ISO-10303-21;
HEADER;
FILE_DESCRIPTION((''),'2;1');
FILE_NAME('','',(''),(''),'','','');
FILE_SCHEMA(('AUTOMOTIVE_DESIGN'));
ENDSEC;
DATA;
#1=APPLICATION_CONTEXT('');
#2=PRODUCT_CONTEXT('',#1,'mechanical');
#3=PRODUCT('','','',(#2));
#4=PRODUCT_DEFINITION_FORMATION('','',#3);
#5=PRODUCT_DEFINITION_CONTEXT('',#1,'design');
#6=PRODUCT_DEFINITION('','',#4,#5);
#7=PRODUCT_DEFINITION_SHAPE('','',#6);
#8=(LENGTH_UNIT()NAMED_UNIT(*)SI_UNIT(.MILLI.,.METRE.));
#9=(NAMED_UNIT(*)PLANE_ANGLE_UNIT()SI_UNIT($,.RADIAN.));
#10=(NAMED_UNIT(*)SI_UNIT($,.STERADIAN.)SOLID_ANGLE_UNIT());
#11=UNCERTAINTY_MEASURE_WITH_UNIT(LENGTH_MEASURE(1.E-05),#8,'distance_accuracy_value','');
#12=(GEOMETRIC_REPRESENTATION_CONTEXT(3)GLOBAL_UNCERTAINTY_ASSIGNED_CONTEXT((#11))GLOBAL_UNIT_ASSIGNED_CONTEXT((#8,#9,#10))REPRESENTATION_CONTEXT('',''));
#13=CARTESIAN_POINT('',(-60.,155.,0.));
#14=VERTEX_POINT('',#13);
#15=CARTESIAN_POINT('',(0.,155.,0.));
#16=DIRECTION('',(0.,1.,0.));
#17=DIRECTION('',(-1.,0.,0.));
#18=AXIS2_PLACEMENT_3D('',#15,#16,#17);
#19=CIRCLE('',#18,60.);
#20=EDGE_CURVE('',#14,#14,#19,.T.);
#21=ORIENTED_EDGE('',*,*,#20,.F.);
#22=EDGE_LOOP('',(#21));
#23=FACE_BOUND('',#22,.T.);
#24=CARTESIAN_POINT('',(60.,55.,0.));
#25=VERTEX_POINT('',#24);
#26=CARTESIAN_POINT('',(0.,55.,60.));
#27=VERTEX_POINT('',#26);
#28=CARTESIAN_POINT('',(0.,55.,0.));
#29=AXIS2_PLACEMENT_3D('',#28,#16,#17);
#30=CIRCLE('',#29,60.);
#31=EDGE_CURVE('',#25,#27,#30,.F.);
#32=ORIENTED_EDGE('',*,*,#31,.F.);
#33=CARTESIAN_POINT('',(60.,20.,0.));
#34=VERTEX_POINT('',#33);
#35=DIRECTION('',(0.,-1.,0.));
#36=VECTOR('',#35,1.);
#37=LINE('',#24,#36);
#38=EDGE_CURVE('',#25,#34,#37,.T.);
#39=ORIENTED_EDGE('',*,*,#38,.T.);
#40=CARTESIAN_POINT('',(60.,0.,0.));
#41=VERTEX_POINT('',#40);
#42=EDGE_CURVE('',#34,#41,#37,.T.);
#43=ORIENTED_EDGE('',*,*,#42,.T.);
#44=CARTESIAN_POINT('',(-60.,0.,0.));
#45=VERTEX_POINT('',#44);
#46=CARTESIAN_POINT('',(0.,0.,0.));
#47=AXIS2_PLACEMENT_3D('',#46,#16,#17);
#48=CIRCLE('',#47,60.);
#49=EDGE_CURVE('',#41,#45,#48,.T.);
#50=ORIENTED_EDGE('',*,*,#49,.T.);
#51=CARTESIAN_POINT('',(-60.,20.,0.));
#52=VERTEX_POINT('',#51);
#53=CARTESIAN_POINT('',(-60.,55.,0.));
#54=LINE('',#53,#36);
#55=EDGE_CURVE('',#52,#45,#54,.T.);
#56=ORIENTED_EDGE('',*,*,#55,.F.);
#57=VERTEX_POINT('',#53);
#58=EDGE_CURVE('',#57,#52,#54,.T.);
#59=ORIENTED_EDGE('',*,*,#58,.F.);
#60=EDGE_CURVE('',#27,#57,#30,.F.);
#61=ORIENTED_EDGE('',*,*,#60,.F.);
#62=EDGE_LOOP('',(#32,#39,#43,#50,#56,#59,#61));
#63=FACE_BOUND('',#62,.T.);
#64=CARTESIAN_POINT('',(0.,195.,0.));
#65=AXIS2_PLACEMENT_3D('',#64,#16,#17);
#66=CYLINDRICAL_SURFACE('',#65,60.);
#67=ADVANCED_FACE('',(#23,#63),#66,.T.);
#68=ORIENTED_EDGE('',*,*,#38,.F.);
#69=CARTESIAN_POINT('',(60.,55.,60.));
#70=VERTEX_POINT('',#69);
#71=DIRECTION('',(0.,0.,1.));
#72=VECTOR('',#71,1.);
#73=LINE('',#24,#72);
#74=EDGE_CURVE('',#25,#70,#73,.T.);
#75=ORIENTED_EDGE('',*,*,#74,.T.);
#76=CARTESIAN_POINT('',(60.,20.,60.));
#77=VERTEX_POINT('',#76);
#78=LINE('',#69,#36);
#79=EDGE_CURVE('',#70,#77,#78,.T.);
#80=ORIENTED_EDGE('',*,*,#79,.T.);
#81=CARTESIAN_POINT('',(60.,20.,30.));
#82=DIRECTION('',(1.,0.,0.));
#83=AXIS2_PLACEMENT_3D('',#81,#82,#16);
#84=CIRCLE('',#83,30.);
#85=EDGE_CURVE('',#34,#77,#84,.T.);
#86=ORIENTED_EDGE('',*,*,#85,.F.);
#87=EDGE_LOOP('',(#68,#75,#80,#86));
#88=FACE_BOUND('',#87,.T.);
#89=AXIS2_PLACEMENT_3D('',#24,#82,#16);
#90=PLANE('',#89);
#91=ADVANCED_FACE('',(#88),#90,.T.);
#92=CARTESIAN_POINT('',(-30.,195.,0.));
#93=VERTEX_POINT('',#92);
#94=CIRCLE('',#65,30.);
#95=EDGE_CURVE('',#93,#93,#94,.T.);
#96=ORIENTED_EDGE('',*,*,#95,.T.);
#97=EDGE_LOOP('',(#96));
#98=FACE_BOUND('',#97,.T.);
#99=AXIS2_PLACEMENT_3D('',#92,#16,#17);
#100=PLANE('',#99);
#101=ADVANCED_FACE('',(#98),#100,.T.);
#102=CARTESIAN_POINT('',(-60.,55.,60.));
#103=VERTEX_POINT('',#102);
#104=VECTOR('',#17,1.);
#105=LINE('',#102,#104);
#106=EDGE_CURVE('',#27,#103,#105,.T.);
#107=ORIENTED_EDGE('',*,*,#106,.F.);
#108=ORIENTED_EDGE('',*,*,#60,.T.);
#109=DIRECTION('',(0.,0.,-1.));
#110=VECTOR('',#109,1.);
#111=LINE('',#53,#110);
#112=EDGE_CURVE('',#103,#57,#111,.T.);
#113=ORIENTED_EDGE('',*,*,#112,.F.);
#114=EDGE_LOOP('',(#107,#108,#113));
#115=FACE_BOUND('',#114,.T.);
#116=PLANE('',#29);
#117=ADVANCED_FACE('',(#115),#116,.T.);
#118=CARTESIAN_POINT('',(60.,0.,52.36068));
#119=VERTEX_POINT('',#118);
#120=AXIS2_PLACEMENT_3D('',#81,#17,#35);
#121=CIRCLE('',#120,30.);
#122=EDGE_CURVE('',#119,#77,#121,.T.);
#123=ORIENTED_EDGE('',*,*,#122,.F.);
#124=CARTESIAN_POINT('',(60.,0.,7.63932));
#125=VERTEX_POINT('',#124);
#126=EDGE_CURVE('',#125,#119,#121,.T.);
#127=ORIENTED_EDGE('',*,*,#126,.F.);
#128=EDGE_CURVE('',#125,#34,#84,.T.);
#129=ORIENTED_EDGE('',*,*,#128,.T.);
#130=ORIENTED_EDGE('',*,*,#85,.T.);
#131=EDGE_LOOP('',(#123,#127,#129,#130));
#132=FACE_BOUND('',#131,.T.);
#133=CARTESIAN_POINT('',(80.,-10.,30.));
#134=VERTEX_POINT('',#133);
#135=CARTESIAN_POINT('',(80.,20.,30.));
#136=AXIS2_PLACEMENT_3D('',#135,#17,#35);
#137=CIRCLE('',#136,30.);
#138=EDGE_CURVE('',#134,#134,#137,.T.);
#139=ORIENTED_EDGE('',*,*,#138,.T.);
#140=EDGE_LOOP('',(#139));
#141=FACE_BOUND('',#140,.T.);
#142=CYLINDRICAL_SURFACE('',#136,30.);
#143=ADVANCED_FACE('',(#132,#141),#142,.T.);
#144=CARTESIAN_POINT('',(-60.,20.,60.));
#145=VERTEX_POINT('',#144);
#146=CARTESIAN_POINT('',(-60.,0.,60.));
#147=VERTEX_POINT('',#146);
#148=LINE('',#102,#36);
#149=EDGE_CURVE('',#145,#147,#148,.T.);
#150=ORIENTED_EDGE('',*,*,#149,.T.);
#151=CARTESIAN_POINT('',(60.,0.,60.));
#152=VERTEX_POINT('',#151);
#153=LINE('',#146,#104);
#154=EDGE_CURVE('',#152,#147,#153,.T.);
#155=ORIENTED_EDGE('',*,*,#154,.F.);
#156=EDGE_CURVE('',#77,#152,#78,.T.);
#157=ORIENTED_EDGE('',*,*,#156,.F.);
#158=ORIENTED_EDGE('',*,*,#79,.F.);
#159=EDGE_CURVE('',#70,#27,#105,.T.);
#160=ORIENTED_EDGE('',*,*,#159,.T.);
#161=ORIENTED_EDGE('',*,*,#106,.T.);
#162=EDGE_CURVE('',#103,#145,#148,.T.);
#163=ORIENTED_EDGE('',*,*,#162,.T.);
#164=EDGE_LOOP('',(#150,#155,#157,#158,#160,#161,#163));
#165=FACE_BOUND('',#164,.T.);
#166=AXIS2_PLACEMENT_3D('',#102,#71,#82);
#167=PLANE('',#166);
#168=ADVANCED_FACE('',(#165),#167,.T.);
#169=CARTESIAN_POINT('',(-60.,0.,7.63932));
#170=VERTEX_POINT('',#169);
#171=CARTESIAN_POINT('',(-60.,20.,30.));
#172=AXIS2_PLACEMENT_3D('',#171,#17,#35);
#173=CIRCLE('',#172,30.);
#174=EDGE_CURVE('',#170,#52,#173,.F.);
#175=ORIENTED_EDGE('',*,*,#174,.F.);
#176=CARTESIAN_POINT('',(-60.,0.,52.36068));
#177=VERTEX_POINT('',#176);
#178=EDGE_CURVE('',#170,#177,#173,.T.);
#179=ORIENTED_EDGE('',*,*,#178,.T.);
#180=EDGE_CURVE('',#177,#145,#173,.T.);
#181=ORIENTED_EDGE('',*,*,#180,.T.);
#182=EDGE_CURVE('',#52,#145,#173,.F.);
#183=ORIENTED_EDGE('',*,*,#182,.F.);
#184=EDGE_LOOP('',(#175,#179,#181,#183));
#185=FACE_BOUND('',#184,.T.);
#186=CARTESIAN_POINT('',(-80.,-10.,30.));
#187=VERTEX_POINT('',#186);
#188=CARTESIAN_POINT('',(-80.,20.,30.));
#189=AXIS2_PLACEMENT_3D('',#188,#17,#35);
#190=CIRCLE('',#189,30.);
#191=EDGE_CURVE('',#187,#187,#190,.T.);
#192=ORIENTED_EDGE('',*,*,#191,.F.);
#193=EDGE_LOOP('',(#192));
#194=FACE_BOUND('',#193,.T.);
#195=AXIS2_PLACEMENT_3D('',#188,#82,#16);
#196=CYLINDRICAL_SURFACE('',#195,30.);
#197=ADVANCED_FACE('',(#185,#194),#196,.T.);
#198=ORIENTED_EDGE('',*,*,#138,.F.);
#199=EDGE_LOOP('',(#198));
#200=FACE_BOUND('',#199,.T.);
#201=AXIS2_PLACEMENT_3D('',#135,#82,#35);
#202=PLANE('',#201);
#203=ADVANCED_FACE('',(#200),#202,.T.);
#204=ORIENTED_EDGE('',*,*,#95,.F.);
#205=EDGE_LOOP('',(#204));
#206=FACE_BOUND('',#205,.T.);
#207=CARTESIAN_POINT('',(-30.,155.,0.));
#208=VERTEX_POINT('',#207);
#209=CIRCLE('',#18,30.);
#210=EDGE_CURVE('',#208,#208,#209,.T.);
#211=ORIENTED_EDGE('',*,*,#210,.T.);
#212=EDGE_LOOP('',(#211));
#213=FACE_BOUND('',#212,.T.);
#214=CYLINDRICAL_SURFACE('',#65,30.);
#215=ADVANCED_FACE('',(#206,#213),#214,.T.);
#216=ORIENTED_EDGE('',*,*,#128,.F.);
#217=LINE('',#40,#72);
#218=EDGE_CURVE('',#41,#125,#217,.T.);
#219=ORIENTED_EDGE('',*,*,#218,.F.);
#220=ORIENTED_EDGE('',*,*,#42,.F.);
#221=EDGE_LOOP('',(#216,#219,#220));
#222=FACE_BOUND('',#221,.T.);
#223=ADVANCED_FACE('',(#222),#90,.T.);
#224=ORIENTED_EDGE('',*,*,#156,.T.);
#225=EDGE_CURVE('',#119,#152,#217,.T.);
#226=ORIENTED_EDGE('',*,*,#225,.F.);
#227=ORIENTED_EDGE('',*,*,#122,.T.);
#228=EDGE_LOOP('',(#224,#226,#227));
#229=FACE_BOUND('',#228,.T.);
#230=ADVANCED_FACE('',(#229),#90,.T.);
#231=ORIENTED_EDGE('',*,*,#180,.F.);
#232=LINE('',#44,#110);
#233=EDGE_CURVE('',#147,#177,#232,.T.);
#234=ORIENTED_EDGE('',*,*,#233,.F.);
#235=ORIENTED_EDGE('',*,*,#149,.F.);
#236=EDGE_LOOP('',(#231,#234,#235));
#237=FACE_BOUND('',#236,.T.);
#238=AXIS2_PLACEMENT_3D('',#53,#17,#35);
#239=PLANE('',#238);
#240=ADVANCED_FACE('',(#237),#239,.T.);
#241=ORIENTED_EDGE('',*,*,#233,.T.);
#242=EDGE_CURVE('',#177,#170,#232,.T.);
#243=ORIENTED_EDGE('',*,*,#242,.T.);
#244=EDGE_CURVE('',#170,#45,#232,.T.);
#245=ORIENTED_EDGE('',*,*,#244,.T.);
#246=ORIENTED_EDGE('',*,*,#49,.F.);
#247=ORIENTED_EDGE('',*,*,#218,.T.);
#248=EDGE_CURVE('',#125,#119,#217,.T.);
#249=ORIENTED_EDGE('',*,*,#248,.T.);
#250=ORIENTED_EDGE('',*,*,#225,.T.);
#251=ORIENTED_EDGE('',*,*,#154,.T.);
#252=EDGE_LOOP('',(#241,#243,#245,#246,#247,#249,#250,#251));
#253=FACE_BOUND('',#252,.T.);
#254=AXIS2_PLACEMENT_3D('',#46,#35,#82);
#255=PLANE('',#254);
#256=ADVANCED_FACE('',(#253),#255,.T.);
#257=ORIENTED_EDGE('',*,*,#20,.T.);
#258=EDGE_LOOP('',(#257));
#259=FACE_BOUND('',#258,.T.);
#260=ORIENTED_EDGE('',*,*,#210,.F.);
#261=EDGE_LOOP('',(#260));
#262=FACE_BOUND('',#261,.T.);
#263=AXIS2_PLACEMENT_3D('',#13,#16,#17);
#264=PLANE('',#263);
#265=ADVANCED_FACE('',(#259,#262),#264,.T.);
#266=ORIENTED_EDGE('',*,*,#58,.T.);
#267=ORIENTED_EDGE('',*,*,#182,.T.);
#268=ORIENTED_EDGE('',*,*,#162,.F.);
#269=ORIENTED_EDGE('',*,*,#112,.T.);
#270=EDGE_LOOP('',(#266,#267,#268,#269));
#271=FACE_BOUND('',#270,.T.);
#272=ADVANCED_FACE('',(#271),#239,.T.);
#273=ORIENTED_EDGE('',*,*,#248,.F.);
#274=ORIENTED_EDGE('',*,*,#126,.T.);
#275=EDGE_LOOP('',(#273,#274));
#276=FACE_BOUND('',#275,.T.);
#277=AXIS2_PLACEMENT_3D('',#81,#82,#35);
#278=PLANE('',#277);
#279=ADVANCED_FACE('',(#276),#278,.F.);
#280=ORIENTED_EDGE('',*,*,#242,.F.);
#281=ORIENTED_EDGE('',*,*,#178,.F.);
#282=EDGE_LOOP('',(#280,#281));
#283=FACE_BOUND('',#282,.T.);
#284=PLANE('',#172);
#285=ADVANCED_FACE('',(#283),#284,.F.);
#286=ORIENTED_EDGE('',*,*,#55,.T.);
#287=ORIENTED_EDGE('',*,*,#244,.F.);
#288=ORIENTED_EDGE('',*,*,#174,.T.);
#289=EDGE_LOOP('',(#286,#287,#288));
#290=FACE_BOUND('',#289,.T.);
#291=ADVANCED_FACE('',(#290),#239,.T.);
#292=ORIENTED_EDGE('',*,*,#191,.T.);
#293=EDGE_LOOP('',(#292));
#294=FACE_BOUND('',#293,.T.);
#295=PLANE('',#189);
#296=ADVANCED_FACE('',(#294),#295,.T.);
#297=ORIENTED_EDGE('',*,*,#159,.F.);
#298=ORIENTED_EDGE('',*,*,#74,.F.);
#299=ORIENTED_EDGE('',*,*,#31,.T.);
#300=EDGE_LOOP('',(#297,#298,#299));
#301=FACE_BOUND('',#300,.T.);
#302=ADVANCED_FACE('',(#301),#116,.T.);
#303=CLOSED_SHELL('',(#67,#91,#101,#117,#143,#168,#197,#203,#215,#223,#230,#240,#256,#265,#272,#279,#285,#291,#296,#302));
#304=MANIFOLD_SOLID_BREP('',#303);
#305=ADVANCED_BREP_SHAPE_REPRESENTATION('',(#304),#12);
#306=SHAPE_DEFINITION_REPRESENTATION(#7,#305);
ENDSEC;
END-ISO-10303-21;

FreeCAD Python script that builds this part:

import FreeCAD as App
import Part
import Sketcher

V = App.Vector


def add_polygon(sketch, points):
    """Adds a closed chain of lines whose ends are joined by coincident constraints."""
    first, n = sketch.GeometryCount, len(points)
    for a, b in zip(points, points[1:] + points[:1]):
        sketch.addGeometry(Part.LineSegment(App.Vector(*a, 0), App.Vector(*b, 0)), False)
    for i in range(n):
        sketch.addConstraint(Sketcher.Constraint("Coincident", first + i, 2, first + (i + 1) % n, 1))

doc = App.newDocument("Part")
body = doc.addObject("PartDesign::Body", "Body")

# Sketch on XY plane
sketch1 = body.newObject("Sketcher::SketchObject", "Sketch")
sketch1.AttachmentSupport = (doc.getObject("XY_Plane"), [""])
sketch1.MapMode = "FlatFace"
add_polygon(sketch1, [(-60, 0), (0, 0), (0, 195), (-30, 195), (-30, 155), (-60, 155)])  # lines 0-5
sketch1.addConstraint(Sketcher.Constraint("Horizontal", 0))
sketch1.addConstraint(Sketcher.Constraint("Vertical", 1))
sketch1.addConstraint(Sketcher.Constraint("Horizontal", 2))
sketch1.addConstraint(Sketcher.Constraint("Vertical", 3))
sketch1.addConstraint(Sketcher.Constraint("Horizontal", 4))
sketch1.addConstraint(Sketcher.Constraint("Vertical", 5))
sketch1.addConstraint(Sketcher.Constraint("Coincident", 0, 2, -1, 1))
sketch1.addConstraint(Sketcher.Constraint("Equal", 2, 4))
sketch1.addConstraint(Sketcher.Constraint("DistanceX", 0, 1, 0, 2, 60.0))
sketch1.addConstraint(Sketcher.Constraint("DistanceY", 1, 1, 1, 2, 195.0))
sketch1.addConstraint(Sketcher.Constraint("DistanceY", 3, 2, 3, 1, 40.0))
revolution = body.newObject("PartDesign::Revolution", "Revolution")
revolution.Profile = sketch1
revolution.ReferenceAxis = (sketch1, ["V_Axis"])
revolution.Angle = 360

# Sketch on XZ plane
sketch2 = body.newObject("Sketcher::SketchObject", "Sketch001")
sketch2.AttachmentSupport = (doc.getObject("XZ_Plane"), [""])
sketch2.MapMode = "FlatFace"
add_polygon(sketch2, [(-60, 60), (-60, 0), (60, 0), (60, 60)])  # lines 0-3
sketch2.addConstraint(Sketcher.Constraint("Vertical", 0))
sketch2.addConstraint(Sketcher.Constraint("Horizontal", 1))
sketch2.addConstraint(Sketcher.Constraint("Vertical", 2))
sketch2.addConstraint(Sketcher.Constraint("Horizontal", 3))
sketch2.addConstraint(Sketcher.Constraint("Symmetric", 0, 2, 1, 2, -1, 1))
sketch2.addConstraint(Sketcher.Constraint("DistanceX", 1, 1, 1, 2, 120.0))
sketch2.addConstraint(Sketcher.Constraint("DistanceY", 0, 2, 0, 1, 60.0))
pad1 = body.newObject("PartDesign::Pad", "Pad")
pad1.Profile = sketch2
pad1.Length = 55
pad1.Reversed = True

# Sketch on YZ plane
sketch3 = body.newObject("Sketcher::SketchObject", "Sketch002")
sketch3.AttachmentSupport = (doc.getObject("YZ_Plane"), [""])
sketch3.MapMode = "FlatFace"
sketch3.AttachmentOffset = App.Placement(V(0, 0, -60), App.Rotation())
sketch3.addGeometry(Part.Circle(V(20, 30, 0), V(0, 0, 1), 30), False)
sketch3.addConstraint(Sketcher.Constraint("Diameter", 0, 60.0))
sketch3.addConstraint(Sketcher.Constraint("DistanceX", -1, 1, 0, 3, 20.0))
sketch3.addConstraint(Sketcher.Constraint("DistanceY", -1, 1, 0, 3, 30.0))
pad2 = body.newObject("PartDesign::Pad", "Pad001")
pad2.Profile = sketch3
pad2.Length = 20
pad2.Reversed = True
doc.recompute()

mirrored = body.newObject("PartDesign::Mirrored", "Mirrored")
mirrored.Originals = [pad2]
mirrored.MirrorPlane = (doc.getObject("YZ_Plane"), [""])
body.Tip = mirrored

doc.recompute()
